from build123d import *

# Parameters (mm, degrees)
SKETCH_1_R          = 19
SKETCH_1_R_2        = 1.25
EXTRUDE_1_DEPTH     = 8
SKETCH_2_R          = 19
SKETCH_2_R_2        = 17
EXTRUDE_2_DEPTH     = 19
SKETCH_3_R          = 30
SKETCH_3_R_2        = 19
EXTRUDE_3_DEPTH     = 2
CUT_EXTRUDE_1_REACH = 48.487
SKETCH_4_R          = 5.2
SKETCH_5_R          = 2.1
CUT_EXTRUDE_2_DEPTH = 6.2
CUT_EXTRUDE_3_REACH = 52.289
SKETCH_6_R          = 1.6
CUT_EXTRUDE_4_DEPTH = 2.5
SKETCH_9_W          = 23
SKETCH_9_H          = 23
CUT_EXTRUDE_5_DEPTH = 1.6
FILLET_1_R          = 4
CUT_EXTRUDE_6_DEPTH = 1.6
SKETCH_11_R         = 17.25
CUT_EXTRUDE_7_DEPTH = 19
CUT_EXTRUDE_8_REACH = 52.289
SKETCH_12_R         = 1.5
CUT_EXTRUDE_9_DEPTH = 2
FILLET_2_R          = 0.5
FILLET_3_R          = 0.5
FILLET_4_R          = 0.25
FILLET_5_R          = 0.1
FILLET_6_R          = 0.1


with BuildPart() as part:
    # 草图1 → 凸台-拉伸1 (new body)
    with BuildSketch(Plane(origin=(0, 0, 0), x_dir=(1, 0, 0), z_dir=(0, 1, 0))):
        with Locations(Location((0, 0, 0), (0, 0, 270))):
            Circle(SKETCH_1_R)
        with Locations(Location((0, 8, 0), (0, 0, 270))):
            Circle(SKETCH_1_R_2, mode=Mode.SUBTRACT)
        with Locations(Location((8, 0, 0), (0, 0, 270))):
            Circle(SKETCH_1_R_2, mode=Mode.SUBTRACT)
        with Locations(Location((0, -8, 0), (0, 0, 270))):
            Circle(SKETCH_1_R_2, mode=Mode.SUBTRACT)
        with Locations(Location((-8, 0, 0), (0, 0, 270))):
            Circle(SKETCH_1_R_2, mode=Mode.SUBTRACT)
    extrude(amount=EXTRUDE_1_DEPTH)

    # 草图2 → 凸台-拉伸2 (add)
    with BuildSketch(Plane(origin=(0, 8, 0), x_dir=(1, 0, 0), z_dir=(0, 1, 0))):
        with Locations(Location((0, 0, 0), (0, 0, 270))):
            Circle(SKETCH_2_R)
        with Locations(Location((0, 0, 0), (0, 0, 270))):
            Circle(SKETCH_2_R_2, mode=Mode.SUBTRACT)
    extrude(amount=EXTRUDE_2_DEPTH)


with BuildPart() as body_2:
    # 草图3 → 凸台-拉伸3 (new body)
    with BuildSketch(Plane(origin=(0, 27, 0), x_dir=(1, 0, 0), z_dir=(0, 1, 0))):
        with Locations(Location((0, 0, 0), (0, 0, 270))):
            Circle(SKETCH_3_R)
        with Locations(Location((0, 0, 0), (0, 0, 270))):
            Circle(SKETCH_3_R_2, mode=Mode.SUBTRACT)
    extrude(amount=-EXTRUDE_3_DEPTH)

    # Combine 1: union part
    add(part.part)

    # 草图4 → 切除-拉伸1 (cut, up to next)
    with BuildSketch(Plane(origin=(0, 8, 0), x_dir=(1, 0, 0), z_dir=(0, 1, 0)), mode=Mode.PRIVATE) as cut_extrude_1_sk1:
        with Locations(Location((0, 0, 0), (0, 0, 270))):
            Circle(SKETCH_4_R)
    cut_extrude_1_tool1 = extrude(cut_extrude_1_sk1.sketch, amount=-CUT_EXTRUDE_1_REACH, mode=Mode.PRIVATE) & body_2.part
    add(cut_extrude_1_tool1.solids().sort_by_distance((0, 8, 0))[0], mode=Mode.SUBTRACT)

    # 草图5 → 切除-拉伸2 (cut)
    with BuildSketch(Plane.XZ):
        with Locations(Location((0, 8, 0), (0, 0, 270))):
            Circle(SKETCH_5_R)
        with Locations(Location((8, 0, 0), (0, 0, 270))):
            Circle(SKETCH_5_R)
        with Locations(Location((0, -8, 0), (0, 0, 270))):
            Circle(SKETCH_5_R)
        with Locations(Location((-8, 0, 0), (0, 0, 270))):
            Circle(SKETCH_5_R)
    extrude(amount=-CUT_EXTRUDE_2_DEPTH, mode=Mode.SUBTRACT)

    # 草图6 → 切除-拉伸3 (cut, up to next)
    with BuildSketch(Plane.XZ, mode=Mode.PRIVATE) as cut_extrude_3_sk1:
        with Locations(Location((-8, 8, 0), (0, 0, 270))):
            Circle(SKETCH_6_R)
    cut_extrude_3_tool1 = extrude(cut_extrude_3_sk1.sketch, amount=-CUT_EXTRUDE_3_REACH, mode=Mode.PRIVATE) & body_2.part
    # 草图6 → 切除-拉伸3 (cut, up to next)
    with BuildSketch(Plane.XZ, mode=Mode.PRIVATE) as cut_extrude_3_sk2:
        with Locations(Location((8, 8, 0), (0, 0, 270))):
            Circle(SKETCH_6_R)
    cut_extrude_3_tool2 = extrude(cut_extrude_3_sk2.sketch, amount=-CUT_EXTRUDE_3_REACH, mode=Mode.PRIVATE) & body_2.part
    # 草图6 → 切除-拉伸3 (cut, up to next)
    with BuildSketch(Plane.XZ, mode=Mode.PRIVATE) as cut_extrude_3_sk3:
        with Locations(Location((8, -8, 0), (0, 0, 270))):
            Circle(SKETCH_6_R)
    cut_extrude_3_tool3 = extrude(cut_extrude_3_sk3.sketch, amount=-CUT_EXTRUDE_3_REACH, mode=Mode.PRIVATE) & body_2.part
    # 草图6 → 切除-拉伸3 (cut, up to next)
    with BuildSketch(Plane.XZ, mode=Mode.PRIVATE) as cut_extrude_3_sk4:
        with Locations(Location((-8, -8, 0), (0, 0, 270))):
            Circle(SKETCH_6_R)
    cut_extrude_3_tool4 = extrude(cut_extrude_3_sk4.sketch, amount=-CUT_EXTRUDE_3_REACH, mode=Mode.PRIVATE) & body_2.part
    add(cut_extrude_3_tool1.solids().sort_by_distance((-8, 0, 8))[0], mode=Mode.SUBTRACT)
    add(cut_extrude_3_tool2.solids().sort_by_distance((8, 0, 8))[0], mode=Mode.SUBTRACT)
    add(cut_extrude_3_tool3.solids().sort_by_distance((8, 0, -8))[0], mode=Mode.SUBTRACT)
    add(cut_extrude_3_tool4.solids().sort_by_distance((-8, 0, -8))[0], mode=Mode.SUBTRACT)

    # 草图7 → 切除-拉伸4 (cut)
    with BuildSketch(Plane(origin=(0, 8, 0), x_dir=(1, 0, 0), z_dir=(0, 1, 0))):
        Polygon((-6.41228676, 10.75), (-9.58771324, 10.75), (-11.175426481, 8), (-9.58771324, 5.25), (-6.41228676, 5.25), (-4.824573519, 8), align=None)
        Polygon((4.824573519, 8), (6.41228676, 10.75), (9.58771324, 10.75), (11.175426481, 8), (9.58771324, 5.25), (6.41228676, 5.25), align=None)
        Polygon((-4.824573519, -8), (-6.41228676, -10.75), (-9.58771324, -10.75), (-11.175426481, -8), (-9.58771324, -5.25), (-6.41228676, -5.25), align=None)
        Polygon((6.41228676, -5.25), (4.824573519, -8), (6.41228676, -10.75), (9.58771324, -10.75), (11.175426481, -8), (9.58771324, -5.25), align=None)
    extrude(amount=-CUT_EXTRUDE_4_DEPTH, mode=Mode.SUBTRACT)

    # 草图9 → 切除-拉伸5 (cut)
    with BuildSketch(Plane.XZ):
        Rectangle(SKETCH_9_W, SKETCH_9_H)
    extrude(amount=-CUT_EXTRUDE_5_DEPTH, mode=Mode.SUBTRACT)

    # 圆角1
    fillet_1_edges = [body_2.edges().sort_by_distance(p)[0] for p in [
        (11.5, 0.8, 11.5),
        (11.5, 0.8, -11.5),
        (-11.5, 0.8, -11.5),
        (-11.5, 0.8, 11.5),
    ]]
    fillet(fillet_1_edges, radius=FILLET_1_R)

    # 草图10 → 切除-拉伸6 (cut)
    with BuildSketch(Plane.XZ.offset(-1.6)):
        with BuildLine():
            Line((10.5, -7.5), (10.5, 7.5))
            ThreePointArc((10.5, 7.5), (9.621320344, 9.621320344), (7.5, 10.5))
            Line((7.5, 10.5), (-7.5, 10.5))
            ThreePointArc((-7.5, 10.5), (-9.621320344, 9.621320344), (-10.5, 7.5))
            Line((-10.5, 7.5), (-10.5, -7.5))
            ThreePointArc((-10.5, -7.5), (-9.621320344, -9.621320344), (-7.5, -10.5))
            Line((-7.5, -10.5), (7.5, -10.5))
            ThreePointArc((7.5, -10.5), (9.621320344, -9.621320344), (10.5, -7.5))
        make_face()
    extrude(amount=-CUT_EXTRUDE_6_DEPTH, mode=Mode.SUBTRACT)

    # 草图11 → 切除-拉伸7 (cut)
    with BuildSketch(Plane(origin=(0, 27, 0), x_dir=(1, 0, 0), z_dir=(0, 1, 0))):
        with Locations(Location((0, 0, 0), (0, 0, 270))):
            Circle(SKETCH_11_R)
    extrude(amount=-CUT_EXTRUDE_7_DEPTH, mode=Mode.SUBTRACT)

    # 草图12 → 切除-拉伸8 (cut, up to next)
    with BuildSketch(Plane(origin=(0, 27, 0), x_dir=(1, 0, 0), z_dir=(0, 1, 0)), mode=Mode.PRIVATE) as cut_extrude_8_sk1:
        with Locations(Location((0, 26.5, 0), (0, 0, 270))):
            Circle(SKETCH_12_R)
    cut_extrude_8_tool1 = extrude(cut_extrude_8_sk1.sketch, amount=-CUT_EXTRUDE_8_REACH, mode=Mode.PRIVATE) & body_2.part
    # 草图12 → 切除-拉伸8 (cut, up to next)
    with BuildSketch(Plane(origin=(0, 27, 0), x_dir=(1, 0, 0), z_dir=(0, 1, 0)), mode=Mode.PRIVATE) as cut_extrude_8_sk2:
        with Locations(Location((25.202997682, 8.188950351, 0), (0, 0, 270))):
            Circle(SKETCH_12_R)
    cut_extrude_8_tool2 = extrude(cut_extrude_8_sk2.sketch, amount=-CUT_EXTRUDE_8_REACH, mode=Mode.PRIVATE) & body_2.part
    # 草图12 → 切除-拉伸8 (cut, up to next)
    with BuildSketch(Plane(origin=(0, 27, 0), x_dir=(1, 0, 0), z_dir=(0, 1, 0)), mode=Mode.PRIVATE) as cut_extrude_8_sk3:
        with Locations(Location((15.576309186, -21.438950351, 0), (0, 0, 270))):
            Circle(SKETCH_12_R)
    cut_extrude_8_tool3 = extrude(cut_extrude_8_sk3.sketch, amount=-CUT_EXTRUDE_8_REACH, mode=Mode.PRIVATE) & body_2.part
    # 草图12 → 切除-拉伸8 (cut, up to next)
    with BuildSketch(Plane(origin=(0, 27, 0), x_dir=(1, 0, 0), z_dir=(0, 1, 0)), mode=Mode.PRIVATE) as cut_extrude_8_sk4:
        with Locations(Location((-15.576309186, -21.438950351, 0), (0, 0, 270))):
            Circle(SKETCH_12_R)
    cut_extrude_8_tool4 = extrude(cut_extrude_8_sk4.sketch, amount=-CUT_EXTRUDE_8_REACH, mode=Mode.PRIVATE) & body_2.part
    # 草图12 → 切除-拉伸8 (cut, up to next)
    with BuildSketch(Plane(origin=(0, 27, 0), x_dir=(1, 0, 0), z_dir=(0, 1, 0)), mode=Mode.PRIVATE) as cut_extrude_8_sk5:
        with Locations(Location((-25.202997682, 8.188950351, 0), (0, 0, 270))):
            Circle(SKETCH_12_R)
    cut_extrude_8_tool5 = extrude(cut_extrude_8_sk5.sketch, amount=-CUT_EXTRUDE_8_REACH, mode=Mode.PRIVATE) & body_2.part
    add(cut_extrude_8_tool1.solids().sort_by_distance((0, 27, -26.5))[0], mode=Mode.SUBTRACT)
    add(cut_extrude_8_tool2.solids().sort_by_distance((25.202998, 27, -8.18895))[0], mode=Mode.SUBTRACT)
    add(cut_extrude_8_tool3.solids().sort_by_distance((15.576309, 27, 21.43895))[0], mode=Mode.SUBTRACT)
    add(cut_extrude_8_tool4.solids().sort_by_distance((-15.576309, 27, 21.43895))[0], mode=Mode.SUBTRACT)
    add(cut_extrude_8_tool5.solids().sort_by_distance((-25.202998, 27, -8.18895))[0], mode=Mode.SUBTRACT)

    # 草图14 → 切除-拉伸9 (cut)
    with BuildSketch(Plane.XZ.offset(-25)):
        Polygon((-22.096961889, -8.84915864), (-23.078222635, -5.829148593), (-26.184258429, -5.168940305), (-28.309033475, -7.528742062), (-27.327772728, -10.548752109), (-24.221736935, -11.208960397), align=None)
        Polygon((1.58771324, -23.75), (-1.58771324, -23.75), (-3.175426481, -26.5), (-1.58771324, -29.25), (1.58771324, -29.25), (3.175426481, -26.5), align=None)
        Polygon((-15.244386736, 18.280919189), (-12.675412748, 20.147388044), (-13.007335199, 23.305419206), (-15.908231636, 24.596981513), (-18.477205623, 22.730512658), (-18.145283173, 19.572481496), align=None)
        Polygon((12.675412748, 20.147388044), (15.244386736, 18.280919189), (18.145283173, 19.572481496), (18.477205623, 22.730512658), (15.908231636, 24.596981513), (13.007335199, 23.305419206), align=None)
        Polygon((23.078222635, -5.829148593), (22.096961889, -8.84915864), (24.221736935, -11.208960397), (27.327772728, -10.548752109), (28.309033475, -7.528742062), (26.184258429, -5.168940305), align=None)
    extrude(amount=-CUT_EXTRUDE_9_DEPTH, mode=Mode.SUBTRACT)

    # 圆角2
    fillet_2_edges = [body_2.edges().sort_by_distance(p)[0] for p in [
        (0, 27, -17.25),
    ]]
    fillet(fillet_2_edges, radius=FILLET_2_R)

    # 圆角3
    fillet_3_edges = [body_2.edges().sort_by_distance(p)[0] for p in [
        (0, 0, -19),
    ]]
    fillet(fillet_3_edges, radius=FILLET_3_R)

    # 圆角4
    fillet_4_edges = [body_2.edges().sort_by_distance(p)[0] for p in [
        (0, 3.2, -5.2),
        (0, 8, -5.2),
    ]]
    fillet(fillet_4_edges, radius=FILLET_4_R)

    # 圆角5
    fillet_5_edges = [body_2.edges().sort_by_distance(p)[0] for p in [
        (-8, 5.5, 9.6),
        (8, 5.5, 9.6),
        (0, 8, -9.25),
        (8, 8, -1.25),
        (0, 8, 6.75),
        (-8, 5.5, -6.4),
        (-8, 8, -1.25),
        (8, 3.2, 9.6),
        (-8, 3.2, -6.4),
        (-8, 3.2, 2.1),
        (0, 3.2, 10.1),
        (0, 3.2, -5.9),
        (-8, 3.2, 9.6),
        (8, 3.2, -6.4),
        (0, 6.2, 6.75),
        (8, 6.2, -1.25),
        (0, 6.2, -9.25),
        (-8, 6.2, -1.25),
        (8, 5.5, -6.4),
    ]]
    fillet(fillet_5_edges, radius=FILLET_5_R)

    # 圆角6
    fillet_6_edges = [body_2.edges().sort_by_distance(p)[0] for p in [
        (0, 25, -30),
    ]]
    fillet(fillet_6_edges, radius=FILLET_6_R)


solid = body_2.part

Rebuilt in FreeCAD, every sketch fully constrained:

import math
import FreeCAD as App
import Part
import Sketcher
from FreeCAD import Vector
Q = App.Units.Quantity


def edges_at(feature, points):
    """Names of the edges that pass closest to the given points."""
    edges = feature.Shape.Edges
    near = lambda p: min(range(len(edges)), key=lambda i: edges[i].distToShape(Part.Vertex(*p))[0])
    return sorted({f"Edge{near(p) + 1}" for p in points})


def add_polygon(sketch, points):
    """Adds a closed chain of lines whose ends are joined by coincident constraints."""
    first, n = sketch.GeometryCount, len(points)
    for a, b in zip(points, points[1:] + points[:1]):
        sketch.addGeometry(Part.LineSegment(App.Vector(*a, 0), App.Vector(*b, 0)), False)
    for i in range(n):
        sketch.addConstraint(Sketcher.Constraint("Coincident", first + i, 2, first + (i + 1) % n, 1))

doc = App.newDocument("Part")
body = doc.addObject("PartDesign::Body", "Body")

sketch1 = body.newObject("Sketcher::SketchObject", "Sketch")
sketch1.AttachmentSupport = (doc.getObject("XZ_Plane"), [""])
sketch1.MapMode = "FlatFace"
sketch1.addGeometry(Part.Circle(Vector(0, 0, 0), Vector(0, 0, 1), 19), False)
sketch1.addGeometry(Part.Circle(Vector(0, -8, 0), Vector(0, 0, 1), 1.2), False)
sketch1.addGeometry(Part.Circle(Vector(-8, 0, 0), Vector(0, 0, 1), 1.2), False)
sketch1.addGeometry(Part.Circle(Vector(8, 0, 0), Vector(0, 0, 1), 1.2), False)
sketch1.addGeometry(Part.Circle(Vector(0, 8, 0), Vector(0, 0, 1), 1.2), False)
sketch1.addConstraint(Sketcher.Constraint("Coincident", 0, 3, -1, 1))
sketch1.addConstraint(Sketcher.Constraint("Equal", 1, 2))
sketch1.addConstraint(Sketcher.Constraint("Equal", 2, 3))
sketch1.addConstraint(Sketcher.Constraint("Equal", 3, 4))
sketch1.addConstraint(Sketcher.Constraint("Symmetric", 2, 3, 3, 3, -1, 1))
sketch1.addConstraint(Sketcher.Constraint("Symmetric", 1, 3, 4, 3, -1, 1))
sketch1.addConstraint(Sketcher.Constraint("PointOnObject", 1, 3, -2))
sketch1.addConstraint(Sketcher.Constraint("PointOnObject", 2, 3, -1))
sketch1.addConstraint(Sketcher.Constraint("Diameter", 0, Q("38 mm")))
sketch1.addConstraint(Sketcher.Constraint("Diameter", 1, Q("2.5 mm")))
sketch1.addConstraint(Sketcher.Constraint("DistanceY", 1, 3, -1, 1, Q("8 mm")))
sketch1.addConstraint(Sketcher.Constraint("DistanceX", 2, 3, -1, 1, Q("8 mm")))
pad1 = body.newObject("PartDesign::Pad", "Pad")
pad1.Profile = sketch1
pad1.Length = 8
pad1.Reversed = True

sketch2 = body.newObject("Sketcher::SketchObject", "Sketch001")
sketch2.AttachmentSupport = (doc.getObject("XZ_Plane"), [""])
sketch2.MapMode = "FlatFace"
sketch2.AttachmentOffset = App.Placement(Vector(0, 0, -8), App.Rotation())
sketch2.addGeometry(Part.Circle(Vector(0, 0, 0), Vector(0, 0, 1), 19), False)
sketch2.addGeometry(Part.Circle(Vector(0, 0, 0), Vector(0, 0, 1), 17), False)
sketch2.addConstraint(Sketcher.Constraint("Coincident", 0, 3, -1, 1))
sketch2.addConstraint(Sketcher.Constraint("Coincident", 1, 3, -1, 1))
sketch2.addConstraint(Sketcher.Constraint("Diameter", 0, Q("38 mm")))
sketch2.addConstraint(Sketcher.Constraint("Diameter", 1, Q("34 mm")))
pad2 = body.newObject("PartDesign::Pad", "Pad001")
pad2.Profile = sketch2
pad2.Length = 19
pad2.Reversed = True
body2 = doc.addObject("PartDesign::Body", "Body001")

sketch3 = body2.newObject("Sketcher::SketchObject", "Sketch002")
sketch3.AttachmentSupport = (doc.getObject("XZ_Plane001"), [""])
sketch3.MapMode = "FlatFace"
sketch3.AttachmentOffset = App.Placement(Vector(0, 0, -27), App.Rotation())
sketch3.addGeometry(Part.Circle(Vector(0, 0, 0), Vector(0, 0, 1), 30), False)
sketch3.addGeometry(Part.Circle(Vector(0, 0, 0), Vector(0, 0, 1), 19), False)
sketch3.addConstraint(Sketcher.Constraint("Coincident", 0, 3, -1, 1))
sketch3.addConstraint(Sketcher.Constraint("Coincident", 1, 3, -1, 1))
sketch3.addConstraint(Sketcher.Constraint("Diameter", 0, Q("60 mm")))
sketch3.addConstraint(Sketcher.Constraint("Diameter", 1, Q("38 mm")))
pad3 = body2.newObject("PartDesign::Pad", "Pad002")
pad3.Profile = sketch3
pad3.Length = 2
doc.recompute()

boolean = body2.newObject("PartDesign::Boolean", "Boolean")
boolean.Type = "Fuse"
boolean.addObjects([body])

sketch4 = body2.newObject("Sketcher::SketchObject", "Sketch003")
sketch4.AttachmentSupport = (doc.getObject("XZ_Plane001"), [""])
sketch4.MapMode = "FlatFace"
sketch4.AttachmentOffset = App.Placement(Vector(0, 0, -8), App.Rotation())
sketch4.addGeometry(Part.Circle(Vector(0, 0, 0), Vector(0, 0, 1), 5), False)
sketch4.addConstraint(Sketcher.Constraint("Coincident", 0, 3, -1, 1))
sketch4.addConstraint(Sketcher.Constraint("Diameter", 0, Q("10.4 mm")))
pocket1 = body2.newObject("PartDesign::Pocket", "Pocket")
pocket1.Profile = sketch4
pocket1.Type = "UpToFirst"
pocket1.Reversed = True

sketch5 = body2.newObject("Sketcher::SketchObject", "Sketch004")
sketch5.AttachmentSupport = (doc.getObject("XZ_Plane001"), [""])
sketch5.MapMode = "FlatFace"
sketch5.addGeometry(Part.Circle(Vector(0, 8, 0), Vector(0, 0, 1), 2.1), False)
sketch5.addGeometry(Part.Circle(Vector(8, 0, 0), Vector(0, 0, 1), 2.1), False)
sketch5.addGeometry(Part.Circle(Vector(0, -8, 0), Vector(0, 0, 1), 2.1), False)
sketch5.addGeometry(Part.Circle(Vector(-8, 0, 0), Vector(0, 0, 1), 2.1), False)
sketch5.addConstraint(Sketcher.Constraint("Equal", 0, 1))
sketch5.addConstraint(Sketcher.Constraint("Equal", 1, 2))
sketch5.addConstraint(Sketcher.Constraint("Equal", 2, 3))
sketch5.addConstraint(Sketcher.Constraint("Symmetric", 0, 3, 2, 3, -1, 1))
sketch5.addConstraint(Sketcher.Constraint("Symmetric", 1, 3, 3, 3, -1, 1))
sketch5.addConstraint(Sketcher.Constraint("PointOnObject", 0, 3, -2))
sketch5.addConstraint(Sketcher.Constraint("PointOnObject", 1, 3, -1))
sketch5.addConstraint(Sketcher.Constraint("Diameter", 0, Q("4.2 mm")))
sketch5.addConstraint(Sketcher.Constraint("DistanceY", -1, 1, 0, 3, Q("8 mm")))
sketch5.addConstraint(Sketcher.Constraint("DistanceX", -1, 1, 1, 3, Q("8 mm")))
pocket2 = body2.newObject("PartDesign::Pocket", "Pocket001")
pocket2.Profile = sketch5
pocket2.Length = 6.2

sketch6 = body2.newObject("Sketcher::SketchObject", "Sketch005")
sketch6.AttachmentSupport = (doc.getObject("XZ_Plane001"), [""])
sketch6.MapMode = "FlatFace"
sketch6.addGeometry(Part.Circle(Vector(-8, 8, 0), Vector(0, 0, 1), 1.6), False)
sketch6.addConstraint(Sketcher.Constraint("Diameter", 0, Q("3.2 mm")))
sketch6.addConstraint(Sketcher.Constraint("DistanceX", 0, 3, -1, 1, Q("8 mm")))
sketch6.addConstraint(Sketcher.Constraint("DistanceY", -1, 1, 0, 3, Q("8 mm")))
pocket3 = body2.newObject("PartDesign::Pocket", "Pocket002")
pocket3.Profile = sketch6
pocket3.Type = "UpToFirst"

sketch7 = body2.newObject("Sketcher::SketchObject", "Sketch006")
sketch7.AttachmentSupport = (doc.getObject("XZ_Plane001"), [""])
sketch7.MapMode = "FlatFace"
sketch7.addGeometry(Part.Circle(Vector(8, 8, 0), Vector(0, 0, 1), 1.6), False)
sketch7.addConstraint(Sketcher.Constraint("Diameter", 0, Q("3.2 mm")))
sketch7.addConstraint(Sketcher.Constraint("DistanceX", -1, 1, 0, 3, Q("8 mm")))
sketch7.addConstraint(Sketcher.Constraint("DistanceY", -1, 1, 0, 3, Q("8 mm")))
pocket4 = body2.newObject("PartDesign::Pocket", "Pocket003")
pocket4.Profile = sketch7
pocket4.Type = "UpToFirst"

sketch8 = body2.newObject("Sketcher::SketchObject", "Sketch007")
sketch8.AttachmentSupport = (doc.getObject("XZ_Plane001"), [""])
sketch8.MapMode = "FlatFace"
sketch8.addGeometry(Part.Circle(Vector(8, -8, 0), Vector(0, 0, 1), 1.6), False)
sketch8.addConstraint(Sketcher.Constraint("Diameter", 0, Q("3.2 mm")))
sketch8.addConstraint(Sketcher.Constraint("DistanceX", -1, 1, 0, 3, Q("8 mm")))
sketch8.addConstraint(Sketcher.Constraint("DistanceY", 0, 3, -1, 1, Q("8 mm")))
pocket5 = body2.newObject("PartDesign::Pocket", "Pocket004")
pocket5.Profile = sketch8
pocket5.Type = "UpToFirst"

sketch9 = body2.newObject("Sketcher::SketchObject", "Sketch008")
sketch9.AttachmentSupport = (doc.getObject("XZ_Plane001"), [""])
sketch9.MapMode = "FlatFace"
sketch9.addGeometry(Part.Circle(Vector(-8, -8, 0), Vector(0, 0, 1), 1.6), False)
sketch9.addConstraint(Sketcher.Constraint("Diameter", 0, Q("3.2 mm")))
sketch9.addConstraint(Sketcher.Constraint("DistanceX", 0, 3, -1, 1, Q("8 mm")))
sketch9.addConstraint(Sketcher.Constraint("DistanceY", 0, 3, -1, 1, Q("8 mm")))
pocket6 = body2.newObject("PartDesign::Pocket", "Pocket005")
pocket6.Profile = sketch9
pocket6.Type = "UpToFirst"

sketch10 = body2.newObject("Sketcher::SketchObject", "Sketch009")
sketch10.AttachmentSupport = (doc.getObject("XZ_Plane001"), [""])
sketch10.MapMode = "FlatFace"
sketch10.AttachmentOffset = App.Placement(Vector(0, 0, -8), App.Rotation())
add_polygon(sketch10, [(-6.4, -10.8), (-9.6, -10.8), (-11.2, -8), (-9.6, -5.2), (-6.4, -5.2), (-4.8, -8)])
add_polygon(sketch10, [(6.4, -10.8), (4.8, -8), (6.4, -5.2), (9.6, -5.2), (11.2, -8), (9.6, -10.8)])
add_polygon(sketch10, [(-6.4, 10.8), (-4.8, 8), (-6.4, 5.2), (-9.6, 5.2), (-11.2, 8), (-9.6, 10.8)])
add_polygon(sketch10, [(6.4, 5.2), (4.8, 8), (6.4, 10.8), (9.6, 10.8), (11.2, 8), (9.6, 5.2)])
sketch10.addConstraint(Sketcher.Constraint("Horizontal", 0))
sketch10.addConstraint(Sketcher.Constraint("Horizontal", 3))
sketch10.addConstraint(Sketcher.Constraint("Horizontal", 8))
sketch10.addConstraint(Sketcher.Constraint("Horizontal", 11))
sketch10.addConstraint(Sketcher.Constraint("Horizontal", 14))
sketch10.addConstraint(Sketcher.Constraint("Horizontal", 17))
sketch10.addConstraint(Sketcher.Constraint("Horizontal", 20))
sketch10.addConstraint(Sketcher.Constraint("Horizontal", 23))
sketch10.addConstraint(Sketcher.Constraint("Symmetric", 6, 2, 12, 2, -1, 1))
sketch10.addConstraint(Sketcher.Constraint("Symmetric", 7, 2, 13, 2, -1, 1))
sketch10.addConstraint(Sketcher.Constraint("Symmetric", 9, 2, 15, 2, -1, 1))
sketch10.addConstraint(Sketcher.Constraint("Symmetric", 10, 2, 16, 2, -1, 1))
sketch10.addConstraint(Sketcher.Constraint("Symmetric", 4, 2, 18, 2, -1, 1))
sketch10.addConstraint(Sketcher.Constraint("Symmetric", 5, 2, 19, 2, -1, 1))
sketch10.addConstraint(Sketcher.Constraint("Symmetric", 1, 2, 21, 2, -1, 1))
sketch10.addConstraint(Sketcher.Constraint("Symmetric", 2, 2, 22, 2, -1, 1))
sketch10.addConstraint(Sketcher.Constraint("Symmetric", 4, 2, 6, 2, -2))
sketch10.addConstraint(Sketcher.Constraint("Symmetric", 3, 2, 7, 2, -2))
sketch10.addConstraint(Sketcher.Constraint("Symmetric", 1, 2, 9, 2, -2))
sketch10.addConstraint(Sketcher.Constraint("Symmetric", 0, 2, 10, 2, -2))
sketch10.addConstraint(Sketcher.Constraint("Parallel", 1, 4))
sketch10.addConstraint(Sketcher.Constraint("Parallel", 2, 5))
sketch10.addConstraint(Sketcher.Constraint("Parallel", 4, 6))
sketch10.addConstraint(Sketcher.Constraint("Parallel", 5, 7))
sketch10.addConstraint(Sketcher.Constraint("Parallel", 6, 9))
sketch10.addConstraint(Sketcher.Constraint("Parallel", 9, 12))
sketch10.addConstraint(Sketcher.Constraint("Parallel", 12, 15))
sketch10.addConstraint(Sketcher.Constraint("Parallel", 15, 18))
sketch10.addConstraint(Sketcher.Constraint("Parallel", 18, 21))
sketch10.addConstraint(Sketcher.Constraint("Horizontal", 1, 2, 4, 2))
sketch10.addConstraint(Sketcher.Constraint("Vertical", 0, 2, 2, 2))
sketch10.addConstraint(Sketcher.Constraint("Angle", 1, Q("120 deg")))
sketch10.addConstraint(Sketcher.Constraint("DistanceY", 1, 2, -1, 1, Q("8 mm")))
sketch10.addConstraint(Sketcher.Constraint("DistanceX", 2, 2, 7, 2, Q("16 mm")))
sketch10.addConstraint(Sketcher.Constraint("DistanceY", 0, 2, 2, 2, Q("5.5 mm")))
sketch10.addConstraint(Sketcher.Constraint("DistanceX", 0, 2, 0, 1, Q("3.175426 mm")))
pocket7 = body2.newObject("PartDesign::Pocket", "Pocket006")
pocket7.Profile = sketch10
pocket7.Length = 2.5
pocket7.Reversed = True

sketch11 = body2.newObject("Sketcher::SketchObject", "Sketch010")
sketch11.AttachmentSupport = (doc.getObject("XZ_Plane001"), [""])
sketch11.MapMode = "FlatFace"
add_polygon(sketch11, [(-12, 12), (-12, -12), (12, -12), (12, 12)])
sketch11.addConstraint(Sketcher.Constraint("Vertical", 0))
sketch11.addConstraint(Sketcher.Constraint("Horizontal", 1))
sketch11.addConstraint(Sketcher.Constraint("Vertical", 2))
sketch11.addConstraint(Sketcher.Constraint("Horizontal", 3))
sketch11.addConstraint(Sketcher.Constraint("Symmetric", 0, 2, 2, 2, -1, 1))
sketch11.addConstraint(Sketcher.Constraint("Equal", 3, 0))
sketch11.addConstraint(Sketcher.Constraint("DistanceX", 1, 1, 1, 2, Q("23 mm")))
pocket8 = body2.newObject("PartDesign::Pocket", "Pocket007")
pocket8.Profile = sketch11
pocket8.Length = 1.6
doc.recompute()

fillet = body2.newObject("PartDesign::Fillet", "Fillet")
fillet.Base = (pocket8, edges_at(pocket8, [
    (11.5, 0.8, 11.5),
    (11.5, 0.8, -11.5),
    (-11.5, 0.8, -11.5),
    (-11.5, 0.8, 11.5),
]))
fillet.Radius = 4

sketch12 = body2.newObject("Sketcher::SketchObject", "Sketch011")
sketch12.AttachmentSupport = (doc.getObject("XZ_Plane001"), [""])
sketch12.MapMode = "FlatFace"
sketch12.AttachmentOffset = App.Placement(Vector(0, 0, -1.6), App.Rotation())
sketch12.addGeometry(Part.LineSegment(Vector(10.5, -7.5, 0), Vector(10.5, 7.5, 0)), False)
sketch12.addGeometry(Part.ArcOfCircle(Part.Circle(Vector(7.5, 7.5, 0), Vector(0, 0, 1), 3), math.radians(0), math.radians(90)), False)
sketch12.addGeometry(Part.LineSegment(Vector(7.5, 10.5, 0), Vector(-7.5, 10.5, 0)), False)
sketch12.addGeometry(Part.ArcOfCircle(Part.Circle(Vector(-7.5, 7.5, 0), Vector(0, 0, 1), 3), math.radians(90), math.radians(180)), False)
sketch12.addGeometry(Part.LineSegment(Vector(-10.5, 7.5, 0), Vector(-10.5, -7.5, 0)), False)
sketch12.addGeometry(Part.ArcOfCircle(Part.Circle(Vector(-7.5, -7.5, 0), Vector(0, 0, 1), 3), math.radians(180), math.radians(270)), False)
sketch12.addGeometry(Part.LineSegment(Vector(-7.5, -10.5, 0), Vector(7.5, -10.5, 0)), False)
sketch12.addGeometry(Part.ArcOfCircle(Part.Circle(Vector(7.5, -7.5, 0), Vector(0, 0, 1), 3), math.radians(-90), math.radians(0)), False)
sketch12.addConstraint(Sketcher.Constraint("Tangent", 0, 2, 1, 1))
sketch12.addConstraint(Sketcher.Constraint("Tangent", 1, 2, 2, 1))
sketch12.addConstraint(Sketcher.Constraint("Tangent", 2, 2, 3, 1))
sketch12.addConstraint(Sketcher.Constraint("Tangent", 3, 2, 4, 1))
sketch12.addConstraint(Sketcher.Constraint("Tangent", 4, 2, 5, 1))
sketch12.addConstraint(Sketcher.Constraint("Tangent", 5, 2, 6, 1))
sketch12.addConstraint(Sketcher.Constraint("Tangent", 6, 2, 7, 1))
sketch12.addConstraint(Sketcher.Constraint("Tangent", 7, 2, 0, 1))
sketch12.addConstraint(Sketcher.Constraint("Vertical", 0))
sketch12.addConstraint(Sketcher.Constraint("Horizontal", 2))
sketch12.addConstraint(Sketcher.Constraint("Vertical", 4))
sketch12.addConstraint(Sketcher.Constraint("Horizontal", 6))
sketch12.addConstraint(Sketcher.Constraint("Equal", 1, 3))
sketch12.addConstraint(Sketcher.Constraint("Equal", 3, 5))
sketch12.addConstraint(Sketcher.Constraint("Equal", 5, 7))
sketch12.addConstraint(Sketcher.Constraint("Symmetric", 1, 3, 5, 3, -1, 1))
sketch12.addConstraint(Sketcher.Constraint("Equal", 6, 0))
sketch12.addConstraint(Sketcher.Constraint("Radius", 1, Q("3 mm")))
sketch12.addConstraint(Sketcher.Constraint("DistanceX", 2, 2, 2, 1, Q("15 mm")))
pocket9 = body2.newObject("PartDesign::Pocket", "Pocket008")
pocket9.Profile = sketch12
pocket9.Length = 1.6

sketch13 = body2.newObject("Sketcher::SketchObject", "Sketch012")
sketch13.AttachmentSupport = (doc.getObject("XZ_Plane001"), [""])
sketch13.MapMode = "FlatFace"
sketch13.AttachmentOffset = App.Placement(Vector(0, 0, -27), App.Rotation())
sketch13.addGeometry(Part.Circle(Vector(0, 0, 0), Vector(0, 0, 1), 17), False)
sketch13.addConstraint(Sketcher.Constraint("Coincident", 0, 3, -1, 1))
sketch13.addConstraint(Sketcher.Constraint("Diameter", 0, Q("34.5 mm")))
pocket10 = body2.newObject("PartDesign::Pocket", "Pocket009")
pocket10.Profile = sketch13
pocket10.Length = 19
pocket10.Reversed = True

sketch14 = body2.newObject("Sketcher::SketchObject", "Sketch013")
sketch14.AttachmentSupport = (doc.getObject("XZ_Plane001"), [""])
sketch14.MapMode = "FlatFace"
sketch14.AttachmentOffset = App.Placement(Vector(0, 0, -27), App.Rotation())
sketch14.addGeometry(Part.Circle(Vector(0, -26.5, 0), Vector(0, 0, 1), 1.5), False)
sketch14.addConstraint(Sketcher.Constraint("PointOnObject", 0, 3, -2))
sketch14.addConstraint(Sketcher.Constraint("Diameter", 0, Q("3 mm")))
sketch14.addConstraint(Sketcher.Constraint("DistanceY", 0, 3, -1, 1, Q("26.5 mm")))
pocket11 = body2.newObject("PartDesign::Pocket", "Pocket010")
pocket11.Profile = sketch14
pocket11.Type = "UpToFirst"
pocket11.Reversed = True

sketch15 = body2.newObject("Sketcher::SketchObject", "Sketch014")
sketch15.AttachmentSupport = (doc.getObject("XZ_Plane001"), [""])
sketch15.MapMode = "FlatFace"
sketch15.AttachmentOffset = App.Placement(Vector(0, 0, -27), App.Rotation())
sketch15.addGeometry(Part.Circle(Vector(25.2, -8.2, 0), Vector(0, 0, 1), 1.5), False)
sketch15.addConstraint(Sketcher.Constraint("Diameter", 0, Q("3 mm")))
sketch15.addConstraint(Sketcher.Constraint("DistanceY", 0, 3, -1, 1, Q("8.18895 mm")))
sketch15.addConstraint(Sketcher.Constraint("DistanceX", -1, 1, 0, 3, Q("25.202998 mm")))
pocket12 = body2.newObject("PartDesign::Pocket", "Pocket011")
pocket12.Profile = sketch15
pocket12.Type = "UpToFirst"
pocket12.Reversed = True

sketch16 = body2.newObject("Sketcher::SketchObject", "Sketch015")
sketch16.AttachmentSupport = (doc.getObject("XZ_Plane001"), [""])
sketch16.MapMode = "FlatFace"
sketch16.AttachmentOffset = App.Placement(Vector(0, 0, -27), App.Rotation())
sketch16.addGeometry(Part.Circle(Vector(15.6, 21.4, 0), Vector(0, 0, 1), 1.5), False)
sketch16.addConstraint(Sketcher.Constraint("Diameter", 0, Q("3 mm")))
sketch16.addConstraint(Sketcher.Constraint("DistanceX", -1, 1, 0, 3, Q("15.576309 mm")))
sketch16.addConstraint(Sketcher.Constraint("DistanceY", -1, 1, 0, 3, Q("21.43895 mm")))
pocket13 = body2.newObject("PartDesign::Pocket", "Pocket012")
pocket13.Profile = sketch16
pocket13.Type = "UpToFirst"
pocket13.Reversed = True

sketch17 = body2.newObject("Sketcher::SketchObject", "Sketch016")
sketch17.AttachmentSupport = (doc.getObject("XZ_Plane001"), [""])
sketch17.MapMode = "FlatFace"
sketch17.AttachmentOffset = App.Placement(Vector(0, 0, -27), App.Rotation())
sketch17.addGeometry(Part.Circle(Vector(-15.6, 21.4, 0), Vector(0, 0, 1), 1.5), False)
sketch17.addConstraint(Sketcher.Constraint("Diameter", 0, Q("3 mm")))
sketch17.addConstraint(Sketcher.Constraint("DistanceX", 0, 3, -1, 1, Q("15.576309 mm")))
sketch17.addConstraint(Sketcher.Constraint("DistanceY", -1, 1, 0, 3, Q("21.43895 mm")))
pocket14 = body2.newObject("PartDesign::Pocket", "Pocket013")
pocket14.Profile = sketch17
pocket14.Type = "UpToFirst"
pocket14.Reversed = True

sketch18 = body2.newObject("Sketcher::SketchObject", "Sketch017")
sketch18.AttachmentSupport = (doc.getObject("XZ_Plane001"), [""])
sketch18.MapMode = "FlatFace"
sketch18.AttachmentOffset = App.Placement(Vector(0, 0, -27), App.Rotation())
sketch18.addGeometry(Part.Circle(Vector(-25.2, -8.2, 0), Vector(0, 0, 1), 1.5), False)
sketch18.addConstraint(Sketcher.Constraint("Diameter", 0, Q("3 mm")))
sketch18.addConstraint(Sketcher.Constraint("DistanceY", 0, 3, -1, 1, Q("8.18895 mm")))
sketch18.addConstraint(Sketcher.Constraint("DistanceX", 0, 3, -1, 1, Q("25.202998 mm")))
pocket15 = body2.newObject("PartDesign::Pocket", "Pocket014")
pocket15.Profile = sketch18
pocket15.Type = "UpToFirst"
pocket15.Reversed = True

sketch19 = body2.newObject("Sketcher::SketchObject", "Sketch018")
sketch19.AttachmentSupport = (doc.getObject("XZ_Plane001"), [""])
sketch19.MapMode = "FlatFace"
sketch19.AttachmentOffset = App.Placement(Vector(0, 0, -25), App.Rotation())
add_polygon(sketch19, [(-22.1, -8.8), (-23.1, -5.8), (-26.2, -5.2), (-28.3, -7.5), (-27.3, -10.5), (-24.2, -11.2)])
add_polygon(sketch19, [(1.6, -23.8), (-1.6, -23.8), (-3.2, -26.5), (-1.6, -29.2), (1.6, -29.2), (3.2, -26.5)])
add_polygon(sketch19, [(-15.2, 18.3), (-12.7, 20.1), (-13, 23.3), (-15.9, 24.6), (-18.5, 22.7), (-18.1, 19.6)])
add_polygon(sketch19, [(12.7, 20.1), (15.2, 18.3), (18.1, 19.6), (18.5, 22.7), (15.9, 24.6), (13, 23.3)])
add_polygon(sketch19, [(23.1, -5.8), (22.1, -8.8), (24.2, -11.2), (27.3, -10.5), (28.3, -7.5), (26.2, -5.2)])
sketch19.addConstraint(Sketcher.Constraint("Horizontal", 6))
sketch19.addConstraint(Sketcher.Constraint("Horizontal", 9))
sketch19.addConstraint(Sketcher.Constraint("Symmetric", 7, 2, 10, 2, -2))
sketch19.addConstraint(Sketcher.Constraint("Symmetric", 17, 2, 18, 2, -2))
sketch19.addConstraint(Sketcher.Constraint("Symmetric", 16, 2, 19, 2, -2))
sketch19.addConstraint(Sketcher.Constraint("Symmetric", 15, 2, 20, 2, -2))
sketch19.addConstraint(Sketcher.Constraint("Symmetric", 14, 2, 21, 2, -2))
sketch19.addConstraint(Sketcher.Constraint("Symmetric", 13, 2, 22, 2, -2))
sketch19.addConstraint(Sketcher.Constraint("Symmetric", 12, 2, 23, 2, -2))
sketch19.addConstraint(Sketcher.Constraint("Symmetric", 5, 2, 24, 2, -2))
sketch19.addConstraint(Sketcher.Constraint("Symmetric", 4, 2, 25, 2, -2))
sketch19.addConstraint(Sketcher.Constraint("Symmetric", 3, 2, 26, 2, -2))
sketch19.addConstraint(Sketcher.Constraint("Symmetric", 2, 2, 27, 2, -2))
sketch19.addConstraint(Sketcher.Constraint("Symmetric", 1, 2, 28, 2, -2))
sketch19.addConstraint(Sketcher.Constraint("Symmetric", 0, 2, 29, 2, -2))
sketch19.addConstraint(Sketcher.Constraint("Parallel", 0, 3))
sketch19.addConstraint(Sketcher.Constraint("Parallel", 1, 4))
sketch19.addConstraint(Sketcher.Constraint("Parallel", 2, 5))
sketch19.addConstraint(Sketcher.Constraint("Parallel", 7, 10))
sketch19.addConstraint(Sketcher.Constraint("Parallel", 8, 11))
sketch19.addConstraint(Sketcher.Constraint("Parallel", 12, 15))
sketch19.addConstraint(Sketcher.Constraint("Parallel", 13, 16))
sketch19.addConstraint(Sketcher.Constraint("Parallel", 14, 17))
sketch19.addConstraint(Sketcher.Constraint("Vertical", 6, 2, 8, 2))
sketch19.addConstraint(Sketcher.Constraint("Vertical", 9, 2, 11, 2))
sketch19.addConstraint(Sketcher.Constraint("Equal", 0, 1))
sketch19.addConstraint(Sketcher.Constraint("Equal", 1, 2))
sketch19.addConstraint(Sketcher.Constraint("Equal", 2, 3))
sketch19.addConstraint(Sketcher.Constraint("Equal", 5, 7))
sketch19.addConstraint(Sketcher.Constraint("Equal", 11, 12))
sketch19.addConstraint(Sketcher.Constraint("Equal", 12, 13))
sketch19.addConstraint(Sketcher.Constraint("Equal", 13, 14))
sketch19.addConstraint(Sketcher.Constraint("Equal", 14, 15))
sketch19.addConstraint(Sketcher.Constraint("Angle", 0, Q("108 deg")))
sketch19.addConstraint(Sketcher.Constraint("Angle", 1, Q("168 deg")))
sketch19.addConstraint(Sketcher.Constraint("Angle", 2, Q("-132 deg")))
sketch19.addConstraint(Sketcher.Constraint("Angle", 7, Q("-120 deg")))
sketch19.addConstraint(Sketcher.Constraint("Angle", 12, Q("36 deg")))
sketch19.addConstraint(Sketcher.Constraint("Angle", 13, Q("96 deg")))
sketch19.addConstraint(Sketcher.Constraint("Angle", 14, Q("156 deg")))
sketch19.addConstraint(Sketcher.Constraint("DistanceY", 7, 2, -1, 1, Q("26.5 mm")))
sketch19.addConstraint(Sketcher.Constraint("DistanceY", 8, 2, 6, 2, Q("5.5 mm")))
sketch19.addConstraint(Sketcher.Constraint("DistanceX", 2, 2, 13, 2, Q("15.301698 mm")))
sketch19.addConstraint(Sketcher.Constraint("DistanceX", 12, 2, 18, 2, Q("27.919799 mm")))
sketch19.addConstraint(Sketcher.Constraint("DistanceX", 6, 2, 6, 1, Q("3.175426 mm")))
sketch19.addConstraint(Sketcher.Constraint("DistanceY", 0, 2, -1, 1, Q("5.829149 mm")))
sketch19.addConstraint(Sketcher.Constraint("DistanceY", -1, 1, 12, 2, Q("20.147388 mm")))
pocket16 = body2.newObject("PartDesign::Pocket", "Pocket015")
pocket16.Profile = sketch19
pocket16.Length = 2
doc.recompute()

fillet2 = body2.newObject("PartDesign::Fillet", "Fillet001")
fillet2.Base = (pocket16, edges_at(pocket16, [(0, 27, -17.25)]))
fillet2.Radius = 0.5
doc.recompute()

fillet3 = body2.newObject("PartDesign::Fillet", "Fillet002")
fillet3.Base = (fillet2, edges_at(fillet2, [(0, 0, -19)]))
fillet3.Radius = 0.5
doc.recompute()

fillet4 = body2.newObject("PartDesign::Fillet", "Fillet003")
fillet4.Base = (fillet3, edges_at(fillet3, [(0, 3.2, -5.2), (0, 8, -5.2)]))
fillet4.Radius = 0.25
doc.recompute()

fillet5 = body2.newObject("PartDesign::Fillet", "Fillet004")
fillet5.Base = (fillet4, edges_at(fillet4, [
    (-8, 5.5, 9.6),
    (8, 5.5, 9.6),
    (0, 8, -9.25),
    (8, 8, -1.25),
    (0, 8, 6.75),
    (-8, 5.5, -6.4),
    (-8, 8, -1.25),
    (8, 3.2, 9.6),
    (-8, 3.2, -6.4),
    (-8, 3.2, 2.1),
    (0, 3.2, 10.1),
    (0, 3.2, -5.9),
    (-8, 3.2, 9.6),
    (8, 3.2, -6.4),
    (0, 6.2, 6.75),
    (8, 6.2, -1.25),
    (0, 6.2, -9.25),
    (-8, 6.2, -1.25),
    (8, 5.5, -6.4),
]))
fillet5.Radius = 0.1
doc.recompute()

fillet6 = body2.newObject("PartDesign::Fillet", "Fillet005")
fillet6.Base = (fillet5, edges_at(fillet5, [(0, 25, -30)]))
fillet6.Radius = 0.1

doc.recompute()
